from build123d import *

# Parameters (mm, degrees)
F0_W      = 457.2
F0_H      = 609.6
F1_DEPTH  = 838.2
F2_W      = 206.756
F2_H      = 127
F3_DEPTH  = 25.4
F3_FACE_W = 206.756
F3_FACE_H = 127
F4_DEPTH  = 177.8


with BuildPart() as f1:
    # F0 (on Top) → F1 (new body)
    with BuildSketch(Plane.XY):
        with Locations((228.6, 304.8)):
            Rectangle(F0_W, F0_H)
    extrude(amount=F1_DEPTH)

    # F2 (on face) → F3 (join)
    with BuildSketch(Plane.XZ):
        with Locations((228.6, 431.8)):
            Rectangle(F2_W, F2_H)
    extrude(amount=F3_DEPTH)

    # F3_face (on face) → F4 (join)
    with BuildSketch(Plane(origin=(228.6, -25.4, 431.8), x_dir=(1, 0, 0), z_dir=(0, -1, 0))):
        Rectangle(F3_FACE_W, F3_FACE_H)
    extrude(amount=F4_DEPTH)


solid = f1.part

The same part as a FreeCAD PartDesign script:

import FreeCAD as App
import Part
import Sketcher

V = App.Vector
Q = App.Units.Quantity


def add_polygon(sketch, points):
    """Adds a closed chain of lines whose ends are joined by coincident constraints."""
    first, n = sketch.GeometryCount, len(points)
    for a, b in zip(points, points[1:] + points[:1]):
        sketch.addGeometry(Part.LineSegment(App.Vector(*a, 0), App.Vector(*b, 0)), False)
    for i in range(n):
        sketch.addConstraint(Sketcher.Constraint("Coincident", first + i, 2, first + (i + 1) % n, 1))

doc = App.newDocument("Part")
params = doc.addObject("Spreadsheet::Sheet", "Params")
for row, (alias, value) in enumerate([
    ("sketch1_width", "18 in"),
    ("sketch1_height", "24 in"),
    ("pad1_length", "33 in"),
    ("sketch2_height", "5 in"),
    ("sketch2_width", "8.14 in"),
    ("pad2_length", "1 in"),
    ("sketch3_height", "5 in"),
    ("sketch3_width", "8.14 in"),
    ("pad3_length", "7 in"),
], start=1):
    params.set(f"A{row}", alias)
    params.set(f"B{row}", "=" + value)
    params.setAlias(f"B{row}", alias)

body = doc.addObject("PartDesign::Body", "Body")

sketch1 = doc.addObject("Sketcher::SketchObject", "Sketch")
body.addObject(sketch1)
sketch1.AttachmentSupport = (doc.XY_Plane, [""])
sketch1.MapMode = "FlatFace"
add_polygon(sketch1, [(0, 609.6), (0, 0), (457.2, 0), (457.2, 609.6)])
sketch1.addConstraint(Sketcher.Constraint("Vertical", 0))
sketch1.addConstraint(Sketcher.Constraint("Horizontal", 1))
sketch1.addConstraint(Sketcher.Constraint("Vertical", 2))
sketch1.addConstraint(Sketcher.Constraint("Horizontal", 3))
sketch1.addConstraint(Sketcher.Constraint("Coincident", 0, 2, -1, 1))
sketch1.addConstraint(Sketcher.Constraint("DistanceX", 1, 1, 1, 2, Q("18 in")))
sketch1.addConstraint(Sketcher.Constraint("DistanceY", 0, 2, 0, 1, Q("24 in")))
sketch1.setExpression("Constraints[9]", "Params.sketch1_width")
sketch1.setExpression("Constraints[10]", "Params.sketch1_height")
pad1 = doc.addObject("PartDesign::Pad", "Pad")
body.addObject(pad1)
pad1.Profile = sketch1
pad1.setExpression("Length", "Params.pad1_length")

sketch2 = doc.addObject("Sketcher::SketchObject", "Sketch001")
body.addObject(sketch2)
sketch2.AttachmentSupport = (doc.XZ_Plane, [""])
sketch2.MapMode = "FlatFace"
add_polygon(sketch2, [(125.222, 495.3), (125.222, 368.3), (331.978, 368.3), (331.978, 495.3)])
sketch2.addConstraint(Sketcher.Constraint("Vertical", 0))
sketch2.addConstraint(Sketcher.Constraint("Horizontal", 1))
sketch2.addConstraint(Sketcher.Constraint("Vertical", 2))
sketch2.addConstraint(Sketcher.Constraint("Horizontal", 3))
sketch2.addConstraint(Sketcher.Constraint("DistanceY", 0, 2, 0, 1, Q("5 in")))
sketch2.addConstraint(Sketcher.Constraint("DistanceX", 1, 1, 1, 2, Q("8.14 in")))
sketch2.addConstraint(Sketcher.Constraint("DistanceY", -1, 1, 0, 2, Q("14.5 in")))
sketch2.addConstraint(Sketcher.Constraint("DistanceX", -1, 1, 0, 2, Q("4.93 in")))
sketch2.setExpression("Constraints[8]", "Params.sketch2_height")
sketch2.setExpression("Constraints[9]", "Params.sketch2_width")
pad2 = doc.addObject("PartDesign::Pad", "Pad001")
body.addObject(pad2)
pad2.Profile = sketch2
pad2.setExpression("Length", "Params.pad2_length")

sketch3 = doc.addObject("Sketcher::SketchObject", "Sketch002")
body.addObject(sketch3)
sketch3.AttachmentSupport = (doc.XZ_Plane, [""])
sketch3.MapMode = "FlatFace"
sketch3.AttachmentOffset = App.Placement(V(0, 0, 1 * 25.4), App.Rotation())
add_polygon(sketch3, [(125.222, 495.3), (125.222, 368.3), (331.978, 368.3), (331.978, 495.3)])
sketch3.addConstraint(Sketcher.Constraint("Vertical", 0))
sketch3.addConstraint(Sketcher.Constraint("Horizontal", 1))
sketch3.addConstraint(Sketcher.Constraint("Vertical", 2))
sketch3.addConstraint(Sketcher.Constraint("Horizontal", 3))
sketch3.addConstraint(Sketcher.Constraint("DistanceY", 0, 2, 0, 1, Q("5 in")))
sketch3.addConstraint(Sketcher.Constraint("DistanceX", 1, 1, 1, 2, Q("8.14 in")))
sketch3.addConstraint(Sketcher.Constraint("DistanceY", -1, 1, 0, 2, Q("14.5 in")))
sketch3.addConstraint(Sketcher.Constraint("DistanceX", -1, 1, 0, 2, Q("4.93 in")))
sketch3.setExpression("Constraints[8]", "Params.sketch3_height")
sketch3.setExpression("Constraints[9]", "Params.sketch3_width")
pad3 = doc.addObject("PartDesign::Pad", "Pad002")
body.addObject(pad3)
pad3.Profile = sketch3
pad3.setExpression("Length", "Params.pad3_length")

doc.recompute()
